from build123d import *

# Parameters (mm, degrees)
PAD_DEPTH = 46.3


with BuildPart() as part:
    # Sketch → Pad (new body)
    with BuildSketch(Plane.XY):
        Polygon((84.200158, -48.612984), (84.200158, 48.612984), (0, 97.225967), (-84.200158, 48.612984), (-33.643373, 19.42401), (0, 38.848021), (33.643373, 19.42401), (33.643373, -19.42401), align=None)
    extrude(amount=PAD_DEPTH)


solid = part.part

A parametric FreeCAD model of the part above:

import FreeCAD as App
import Part
import Sketcher

V = App.Vector
Q = App.Units.Quantity


def add_polygon(sketch, points):
    """Adds a closed chain of lines whose ends are joined by coincident constraints."""
    first, n = sketch.GeometryCount, len(points)
    for a, b in zip(points, points[1:] + points[:1]):
        sketch.addGeometry(Part.LineSegment(App.Vector(*a, 0), App.Vector(*b, 0)), False)
    for i in range(n):
        sketch.addConstraint(Sketcher.Constraint("Coincident", first + i, 2, first + (i + 1) % n, 1))

doc = App.newDocument("Part")
body = doc.addObject("PartDesign::Body", "Body")

# Sketch on XY plane
sketch1 = body.newObject("Sketcher::SketchObject", "Sketch")
sketch1.AttachmentSupport = (doc.getObject("XY_Plane"), [""])
sketch1.MapMode = "FlatFace"
add_polygon(sketch1, [(84.200158, -48.612984), (84.200158, 48.612984), (0, 97.225967), (-84.200158, 48.612984), (-33.643373, 19.42401), (0, 38.848021), (33.643373, 19.42401), (33.643373, -19.42401)])  # lines 0-7
sketch1.addConstraint([
    Sketcher.Constraint("Vertical", 0),
    Sketcher.Constraint("Vertical", 6),
    Sketcher.Constraint("Symmetric", 3, 2, 6, 2, -1, 1),
    Sketcher.Constraint("Symmetric", 2, 2, 7, 2, -1, 1),
    Sketcher.Constraint("PointOnObject", 1, 2, -2),
    Sketcher.Constraint("PointOnObject", 4, 2, -2),
    Sketcher.Constraint("Parallel", 1, 3),
    Sketcher.Constraint("Parallel", 2, 4),
    Sketcher.Constraint("Parallel", 3, 5),
    Sketcher.Constraint("Horizontal", 0, 2, 2, 2),
    Sketcher.Constraint("Angle", 1, Q("150 deg")),
    Sketcher.Constraint("DistanceY", 6, 2, 6, 1, Q("38.84802 mm")),
    Sketcher.Constraint("Distance", 4, Q("38.848021 mm")),
    Sketcher.Constraint("DistanceY", 0, 1, 0, 2, Q("97.225968 mm")),
])
pad1 = body.newObject("PartDesign::Pad", "Pad")
pad1.Profile = sketch1
pad1.Length = 46.3

doc.recompute()
